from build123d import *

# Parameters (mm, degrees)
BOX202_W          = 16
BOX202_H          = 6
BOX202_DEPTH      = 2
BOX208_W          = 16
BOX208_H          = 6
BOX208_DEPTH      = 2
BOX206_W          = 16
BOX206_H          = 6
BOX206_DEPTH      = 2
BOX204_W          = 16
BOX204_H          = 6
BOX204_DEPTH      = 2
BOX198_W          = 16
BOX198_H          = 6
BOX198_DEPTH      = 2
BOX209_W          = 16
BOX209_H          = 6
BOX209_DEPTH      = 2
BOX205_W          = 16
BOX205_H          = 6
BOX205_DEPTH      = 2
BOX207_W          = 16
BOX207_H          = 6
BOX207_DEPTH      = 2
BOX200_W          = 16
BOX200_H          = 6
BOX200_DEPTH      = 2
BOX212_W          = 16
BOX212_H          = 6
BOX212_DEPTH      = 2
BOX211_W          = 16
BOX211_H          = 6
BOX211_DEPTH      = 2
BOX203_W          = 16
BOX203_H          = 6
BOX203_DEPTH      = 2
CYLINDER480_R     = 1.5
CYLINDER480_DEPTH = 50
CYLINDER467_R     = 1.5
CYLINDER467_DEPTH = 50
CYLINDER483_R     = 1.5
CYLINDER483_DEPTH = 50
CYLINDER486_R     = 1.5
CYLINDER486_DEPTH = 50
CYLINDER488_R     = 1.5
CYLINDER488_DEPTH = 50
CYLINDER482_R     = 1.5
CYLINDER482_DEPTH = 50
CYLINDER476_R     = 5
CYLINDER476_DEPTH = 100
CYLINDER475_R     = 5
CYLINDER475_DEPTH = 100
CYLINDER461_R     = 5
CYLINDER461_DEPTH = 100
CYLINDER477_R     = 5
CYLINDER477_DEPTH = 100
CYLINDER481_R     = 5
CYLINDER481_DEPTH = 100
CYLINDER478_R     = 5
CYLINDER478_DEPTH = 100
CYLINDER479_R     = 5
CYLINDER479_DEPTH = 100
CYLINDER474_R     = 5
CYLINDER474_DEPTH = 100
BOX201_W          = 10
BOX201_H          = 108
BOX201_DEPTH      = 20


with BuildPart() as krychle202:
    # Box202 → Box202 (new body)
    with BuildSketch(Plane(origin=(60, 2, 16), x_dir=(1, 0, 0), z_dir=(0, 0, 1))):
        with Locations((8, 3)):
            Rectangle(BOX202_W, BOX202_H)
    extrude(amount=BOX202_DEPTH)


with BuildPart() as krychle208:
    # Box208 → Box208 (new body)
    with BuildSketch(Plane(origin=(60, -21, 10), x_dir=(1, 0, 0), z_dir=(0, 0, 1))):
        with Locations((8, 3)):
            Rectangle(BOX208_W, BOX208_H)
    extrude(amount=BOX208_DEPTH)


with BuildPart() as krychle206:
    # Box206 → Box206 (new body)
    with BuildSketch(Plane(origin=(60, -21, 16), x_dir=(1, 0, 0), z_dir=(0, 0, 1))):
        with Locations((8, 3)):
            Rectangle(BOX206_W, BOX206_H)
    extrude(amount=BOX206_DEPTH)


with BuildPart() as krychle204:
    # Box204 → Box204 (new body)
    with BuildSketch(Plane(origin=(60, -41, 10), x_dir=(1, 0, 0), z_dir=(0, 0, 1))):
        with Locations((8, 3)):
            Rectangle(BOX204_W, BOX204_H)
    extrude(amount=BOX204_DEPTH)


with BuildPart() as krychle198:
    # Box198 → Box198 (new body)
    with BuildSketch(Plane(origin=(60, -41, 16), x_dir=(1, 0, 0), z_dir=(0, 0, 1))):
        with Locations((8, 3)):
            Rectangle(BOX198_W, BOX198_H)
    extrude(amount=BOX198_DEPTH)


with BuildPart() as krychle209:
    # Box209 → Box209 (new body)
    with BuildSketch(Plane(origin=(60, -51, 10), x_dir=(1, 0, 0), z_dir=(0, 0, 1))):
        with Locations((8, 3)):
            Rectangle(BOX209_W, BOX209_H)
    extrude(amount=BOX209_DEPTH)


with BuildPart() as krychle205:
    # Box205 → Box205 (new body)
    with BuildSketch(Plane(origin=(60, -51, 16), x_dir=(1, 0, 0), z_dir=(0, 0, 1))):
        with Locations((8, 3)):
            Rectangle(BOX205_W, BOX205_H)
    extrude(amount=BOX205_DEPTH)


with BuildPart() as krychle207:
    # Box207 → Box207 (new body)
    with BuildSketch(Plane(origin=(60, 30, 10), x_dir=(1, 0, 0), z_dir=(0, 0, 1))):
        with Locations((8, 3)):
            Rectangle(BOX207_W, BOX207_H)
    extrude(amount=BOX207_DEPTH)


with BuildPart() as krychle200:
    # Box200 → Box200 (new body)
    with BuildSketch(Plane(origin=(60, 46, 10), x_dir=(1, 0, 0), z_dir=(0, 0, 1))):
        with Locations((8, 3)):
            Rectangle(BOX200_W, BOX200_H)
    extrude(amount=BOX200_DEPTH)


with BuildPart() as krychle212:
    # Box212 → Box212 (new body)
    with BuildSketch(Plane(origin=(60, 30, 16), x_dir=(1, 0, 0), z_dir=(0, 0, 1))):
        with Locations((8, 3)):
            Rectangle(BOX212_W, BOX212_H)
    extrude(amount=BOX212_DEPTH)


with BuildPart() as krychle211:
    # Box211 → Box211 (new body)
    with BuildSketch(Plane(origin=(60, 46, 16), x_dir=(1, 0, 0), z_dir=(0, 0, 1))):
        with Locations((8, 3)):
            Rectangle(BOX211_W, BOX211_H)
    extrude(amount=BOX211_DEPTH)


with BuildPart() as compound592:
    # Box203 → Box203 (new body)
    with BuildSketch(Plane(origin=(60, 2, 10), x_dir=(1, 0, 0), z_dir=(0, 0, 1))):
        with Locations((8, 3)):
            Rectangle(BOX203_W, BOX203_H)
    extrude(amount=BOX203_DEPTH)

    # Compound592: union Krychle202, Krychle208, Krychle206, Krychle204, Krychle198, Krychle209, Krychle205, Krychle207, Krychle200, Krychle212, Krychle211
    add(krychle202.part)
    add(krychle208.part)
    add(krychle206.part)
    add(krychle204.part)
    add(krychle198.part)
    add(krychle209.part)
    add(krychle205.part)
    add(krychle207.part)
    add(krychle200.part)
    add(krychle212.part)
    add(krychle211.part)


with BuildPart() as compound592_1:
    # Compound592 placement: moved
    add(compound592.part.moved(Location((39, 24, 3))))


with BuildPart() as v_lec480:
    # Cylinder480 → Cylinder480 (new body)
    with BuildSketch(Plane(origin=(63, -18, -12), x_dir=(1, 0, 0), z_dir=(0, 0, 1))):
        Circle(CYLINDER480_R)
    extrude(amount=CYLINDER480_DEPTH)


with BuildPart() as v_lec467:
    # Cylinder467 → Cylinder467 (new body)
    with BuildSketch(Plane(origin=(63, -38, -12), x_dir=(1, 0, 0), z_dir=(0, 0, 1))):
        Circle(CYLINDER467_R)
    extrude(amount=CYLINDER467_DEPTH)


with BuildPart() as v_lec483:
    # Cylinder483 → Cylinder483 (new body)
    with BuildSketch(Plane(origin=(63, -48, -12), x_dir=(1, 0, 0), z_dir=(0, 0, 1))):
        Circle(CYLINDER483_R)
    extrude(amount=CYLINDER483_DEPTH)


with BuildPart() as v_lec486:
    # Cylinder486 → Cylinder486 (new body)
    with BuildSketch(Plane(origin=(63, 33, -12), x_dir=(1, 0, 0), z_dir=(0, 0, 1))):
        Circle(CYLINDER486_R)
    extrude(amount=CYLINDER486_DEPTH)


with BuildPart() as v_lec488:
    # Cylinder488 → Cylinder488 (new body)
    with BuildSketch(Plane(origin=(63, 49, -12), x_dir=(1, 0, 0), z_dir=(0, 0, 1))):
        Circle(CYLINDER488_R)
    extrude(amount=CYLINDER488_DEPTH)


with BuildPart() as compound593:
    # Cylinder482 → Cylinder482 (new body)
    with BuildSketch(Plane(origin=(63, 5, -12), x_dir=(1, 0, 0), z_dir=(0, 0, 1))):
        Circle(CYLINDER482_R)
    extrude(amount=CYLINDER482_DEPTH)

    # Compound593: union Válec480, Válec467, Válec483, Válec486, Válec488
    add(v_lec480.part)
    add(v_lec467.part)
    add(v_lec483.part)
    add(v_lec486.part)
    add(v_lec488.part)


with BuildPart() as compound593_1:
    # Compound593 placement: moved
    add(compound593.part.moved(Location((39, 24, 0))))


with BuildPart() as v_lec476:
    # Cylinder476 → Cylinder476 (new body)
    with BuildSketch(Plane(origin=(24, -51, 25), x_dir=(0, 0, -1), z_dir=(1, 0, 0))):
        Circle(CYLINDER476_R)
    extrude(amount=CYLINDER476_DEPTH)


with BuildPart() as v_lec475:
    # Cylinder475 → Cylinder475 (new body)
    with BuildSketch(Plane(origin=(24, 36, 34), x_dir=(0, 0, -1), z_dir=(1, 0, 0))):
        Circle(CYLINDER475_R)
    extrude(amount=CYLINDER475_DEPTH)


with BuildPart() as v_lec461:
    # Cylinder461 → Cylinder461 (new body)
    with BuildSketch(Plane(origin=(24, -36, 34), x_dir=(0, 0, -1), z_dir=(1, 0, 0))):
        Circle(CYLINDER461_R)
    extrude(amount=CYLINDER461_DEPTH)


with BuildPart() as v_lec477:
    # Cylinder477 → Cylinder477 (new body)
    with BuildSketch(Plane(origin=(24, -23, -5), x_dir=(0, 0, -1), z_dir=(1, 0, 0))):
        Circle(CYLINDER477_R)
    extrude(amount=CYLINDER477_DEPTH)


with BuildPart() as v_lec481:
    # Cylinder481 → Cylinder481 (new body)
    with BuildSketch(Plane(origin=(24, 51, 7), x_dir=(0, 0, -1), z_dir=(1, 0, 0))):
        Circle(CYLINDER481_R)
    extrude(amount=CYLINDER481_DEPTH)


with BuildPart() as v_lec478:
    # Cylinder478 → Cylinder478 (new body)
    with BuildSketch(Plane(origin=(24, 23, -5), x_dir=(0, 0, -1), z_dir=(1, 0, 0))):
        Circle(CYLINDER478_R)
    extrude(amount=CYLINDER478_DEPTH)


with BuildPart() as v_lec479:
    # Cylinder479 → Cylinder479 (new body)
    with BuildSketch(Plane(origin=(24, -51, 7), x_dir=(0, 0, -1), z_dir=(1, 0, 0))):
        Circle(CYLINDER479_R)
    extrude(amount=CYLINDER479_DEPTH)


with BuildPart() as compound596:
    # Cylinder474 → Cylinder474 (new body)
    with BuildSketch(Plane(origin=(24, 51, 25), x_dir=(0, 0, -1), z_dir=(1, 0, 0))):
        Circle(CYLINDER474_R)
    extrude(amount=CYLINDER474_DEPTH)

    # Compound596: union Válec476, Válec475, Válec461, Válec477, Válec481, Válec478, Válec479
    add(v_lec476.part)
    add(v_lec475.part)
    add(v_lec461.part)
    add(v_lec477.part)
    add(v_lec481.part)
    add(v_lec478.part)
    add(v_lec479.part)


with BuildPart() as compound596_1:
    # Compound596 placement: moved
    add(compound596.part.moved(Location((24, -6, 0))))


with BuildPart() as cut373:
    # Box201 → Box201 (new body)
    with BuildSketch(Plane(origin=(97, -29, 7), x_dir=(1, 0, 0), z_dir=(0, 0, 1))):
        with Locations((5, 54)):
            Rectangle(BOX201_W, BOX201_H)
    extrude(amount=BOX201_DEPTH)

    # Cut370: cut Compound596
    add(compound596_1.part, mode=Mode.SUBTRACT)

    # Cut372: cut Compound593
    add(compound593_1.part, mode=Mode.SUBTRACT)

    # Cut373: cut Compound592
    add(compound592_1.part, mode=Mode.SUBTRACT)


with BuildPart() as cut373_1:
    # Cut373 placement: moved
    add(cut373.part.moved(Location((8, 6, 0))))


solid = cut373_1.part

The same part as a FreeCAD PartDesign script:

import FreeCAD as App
import Part
import Sketcher
Q = App.Units.Quantity

doc = App.newDocument("Part")
body = doc.addObject("PartDesign::Body", "Body")

# Sketch on XY plane
sketch1 = body.newObject("Sketcher::SketchObject", "Sketch")
sketch1.AttachmentSupport = (doc.getObject("XY_Plane"), [""])
sketch1.MapMode = "FlatFace"
sketch1.AttachmentOffset = App.Placement(App.Vector(0, 0, 16), App.Rotation())
sketch1.addGeometry(Part.LineSegment(App.Vector(60, 8, 0), App.Vector(60, 2, 0)), False)
sketch1.addGeometry(Part.LineSegment(App.Vector(60, 2, 0), App.Vector(76, 2, 0)), False)
sketch1.addGeometry(Part.LineSegment(App.Vector(76, 2, 0), App.Vector(76, 8, 0)), False)
sketch1.addGeometry(Part.LineSegment(App.Vector(76, 8, 0), App.Vector(60, 8, 0)), False)
sketch1.addConstraint(Sketcher.Constraint("Coincident", 0, 2, 1, 1))
sketch1.addConstraint(Sketcher.Constraint("Coincident", 1, 2, 2, 1))
sketch1.addConstraint(Sketcher.Constraint("Coincident", 2, 2, 3, 1))
sketch1.addConstraint(Sketcher.Constraint("Coincident", 3, 2, 0, 1))
sketch1.addConstraint(Sketcher.Constraint("Vertical", 0))
sketch1.addConstraint(Sketcher.Constraint("Horizontal", 1))
sketch1.addConstraint(Sketcher.Constraint("Vertical", 2))
sketch1.addConstraint(Sketcher.Constraint("Horizontal", 3))
sketch1.addConstraint(Sketcher.Constraint("DistanceX", 1, 1, 1, 2, Q("16 mm")))
sketch1.addConstraint(Sketcher.Constraint("DistanceY", 0, 2, 0, 1, Q("6 mm")))
sketch1.addConstraint(Sketcher.Constraint("DistanceX", -1, 1, 0, 2, Q("60 mm")))
sketch1.addConstraint(Sketcher.Constraint("DistanceY", -1, 1, 0, 2, Q("2 mm")))
pad1 = body.newObject("PartDesign::Pad", "Pad")
pad1.Profile = sketch1
pad1.Length = 2
body2 = doc.addObject("PartDesign::Body", "Body001")

# Sketch on XY plane
sketch2 = body2.newObject("Sketcher::SketchObject", "Sketch001")
sketch2.AttachmentSupport = (doc.getObject("XY_Plane001"), [""])
sketch2.MapMode = "FlatFace"
sketch2.AttachmentOffset = App.Placement(App.Vector(0, 0, 10), App.Rotation())
sketch2.addGeometry(Part.LineSegment(App.Vector(60, -15, 0), App.Vector(60, -21, 0)), False)
sketch2.addGeometry(Part.LineSegment(App.Vector(60, -21, 0), App.Vector(76, -21, 0)), False)
sketch2.addGeometry(Part.LineSegment(App.Vector(76, -21, 0), App.Vector(76, -15, 0)), False)
sketch2.addGeometry(Part.LineSegment(App.Vector(76, -15, 0), App.Vector(60, -15, 0)), False)
sketch2.addConstraint(Sketcher.Constraint("Coincident", 0, 2, 1, 1))
sketch2.addConstraint(Sketcher.Constraint("Coincident", 1, 2, 2, 1))
sketch2.addConstraint(Sketcher.Constraint("Coincident", 2, 2, 3, 1))
sketch2.addConstraint(Sketcher.Constraint("Coincident", 3, 2, 0, 1))
sketch2.addConstraint(Sketcher.Constraint("Vertical", 0))
sketch2.addConstraint(Sketcher.Constraint("Horizontal", 1))
sketch2.addConstraint(Sketcher.Constraint("Vertical", 2))
sketch2.addConstraint(Sketcher.Constraint("Horizontal", 3))
sketch2.addConstraint(Sketcher.Constraint("DistanceX", 1, 1, 1, 2, Q("16 mm")))
sketch2.addConstraint(Sketcher.Constraint("DistanceY", 0, 2, 0, 1, Q("6 mm")))
sketch2.addConstraint(Sketcher.Constraint("DistanceX", -1, 1, 0, 2, Q("60 mm")))
sketch2.addConstraint(Sketcher.Constraint("DistanceY", 0, 2, -1, 1, Q("21 mm")))
pad2 = body2.newObject("PartDesign::Pad", "Pad001")
pad2.Profile = sketch2
pad2.Length = 2
body3 = doc.addObject("PartDesign::Body", "Body002")

# Sketch on XY plane
sketch3 = body3.newObject("Sketcher::SketchObject", "Sketch002")
sketch3.AttachmentSupport = (doc.getObject("XY_Plane002"), [""])
sketch3.MapMode = "FlatFace"
sketch3.AttachmentOffset = App.Placement(App.Vector(0, 0, 16), App.Rotation())
sketch3.addGeometry(Part.LineSegment(App.Vector(60, -15, 0), App.Vector(60, -21, 0)), False)
sketch3.addGeometry(Part.LineSegment(App.Vector(60, -21, 0), App.Vector(76, -21, 0)), False)
sketch3.addGeometry(Part.LineSegment(App.Vector(76, -21, 0), App.Vector(76, -15, 0)), False)
sketch3.addGeometry(Part.LineSegment(App.Vector(76, -15, 0), App.Vector(60, -15, 0)), False)
sketch3.addConstraint(Sketcher.Constraint("Coincident", 0, 2, 1, 1))
sketch3.addConstraint(Sketcher.Constraint("Coincident", 1, 2, 2, 1))
sketch3.addConstraint(Sketcher.Constraint("Coincident", 2, 2, 3, 1))
sketch3.addConstraint(Sketcher.Constraint("Coincident", 3, 2, 0, 1))
sketch3.addConstraint(Sketcher.Constraint("Vertical", 0))
sketch3.addConstraint(Sketcher.Constraint("Horizontal", 1))
sketch3.addConstraint(Sketcher.Constraint("Vertical", 2))
sketch3.addConstraint(Sketcher.Constraint("Horizontal", 3))
sketch3.addConstraint(Sketcher.Constraint("DistanceX", 1, 1, 1, 2, Q("16 mm")))
sketch3.addConstraint(Sketcher.Constraint("DistanceY", 0, 2, 0, 1, Q("6 mm")))
sketch3.addConstraint(Sketcher.Constraint("DistanceX", -1, 1, 0, 2, Q("60 mm")))
sketch3.addConstraint(Sketcher.Constraint("DistanceY", 0, 2, -1, 1, Q("21 mm")))
pad3 = body3.newObject("PartDesign::Pad", "Pad002")
pad3.Profile = sketch3
pad3.Length = 2
body4 = doc.addObject("PartDesign::Body", "Body003")

# Sketch on XY plane
sketch4 = body4.newObject("Sketcher::SketchObject", "Sketch003")
sketch4.AttachmentSupport = (doc.getObject("XY_Plane003"), [""])
sketch4.MapMode = "FlatFace"
sketch4.AttachmentOffset = App.Placement(App.Vector(0, 0, 10), App.Rotation())
sketch4.addGeometry(Part.LineSegment(App.Vector(60, -35, 0), App.Vector(60, -41, 0)), False)
sketch4.addGeometry(Part.LineSegment(App.Vector(60, -41, 0), App.Vector(76, -41, 0)), False)
sketch4.addGeometry(Part.LineSegment(App.Vector(76, -41, 0), App.Vector(76, -35, 0)), False)
sketch4.addGeometry(Part.LineSegment(App.Vector(76, -35, 0), App.Vector(60, -35, 0)), False)
sketch4.addConstraint(Sketcher.Constraint("Coincident", 0, 2, 1, 1))
sketch4.addConstraint(Sketcher.Constraint("Coincident", 1, 2, 2, 1))
sketch4.addConstraint(Sketcher.Constraint("Coincident", 2, 2, 3, 1))
sketch4.addConstraint(Sketcher.Constraint("Coincident", 3, 2, 0, 1))
sketch4.addConstraint(Sketcher.Constraint("Vertical", 0))
sketch4.addConstraint(Sketcher.Constraint("Horizontal", 1))
sketch4.addConstraint(Sketcher.Constraint("Vertical", 2))
sketch4.addConstraint(Sketcher.Constraint("Horizontal", 3))
sketch4.addConstraint(Sketcher.Constraint("DistanceX", 1, 1, 1, 2, Q("16 mm")))
sketch4.addConstraint(Sketcher.Constraint("DistanceY", 0, 2, 0, 1, Q("6 mm")))
sketch4.addConstraint(Sketcher.Constraint("DistanceX", -1, 1, 0, 2, Q("60 mm")))
sketch4.addConstraint(Sketcher.Constraint("DistanceY", 0, 2, -1, 1, Q("41 mm")))
pad4 = body4.newObject("PartDesign::Pad", "Pad003")
pad4.Profile = sketch4
pad4.Length = 2
body5 = doc.addObject("PartDesign::Body", "Body004")

# Sketch on XY plane
sketch5 = body5.newObject("Sketcher::SketchObject", "Sketch004")
sketch5.AttachmentSupport = (doc.getObject("XY_Plane004"), [""])
sketch5.MapMode = "FlatFace"
sketch5.AttachmentOffset = App.Placement(App.Vector(0, 0, 16), App.Rotation())
sketch5.addGeometry(Part.LineSegment(App.Vector(60, -35, 0), App.Vector(60, -41, 0)), False)
sketch5.addGeometry(Part.LineSegment(App.Vector(60, -41, 0), App.Vector(76, -41, 0)), False)
sketch5.addGeometry(Part.LineSegment(App.Vector(76, -41, 0), App.Vector(76, -35, 0)), False)
sketch5.addGeometry(Part.LineSegment(App.Vector(76, -35, 0), App.Vector(60, -35, 0)), False)
sketch5.addConstraint(Sketcher.Constraint("Coincident", 0, 2, 1, 1))
sketch5.addConstraint(Sketcher.Constraint("Coincident", 1, 2, 2, 1))
sketch5.addConstraint(Sketcher.Constraint("Coincident", 2, 2, 3, 1))
sketch5.addConstraint(Sketcher.Constraint("Coincident", 3, 2, 0, 1))
sketch5.addConstraint(Sketcher.Constraint("Vertical", 0))
sketch5.addConstraint(Sketcher.Constraint("Horizontal", 1))
sketch5.addConstraint(Sketcher.Constraint("Vertical", 2))
sketch5.addConstraint(Sketcher.Constraint("Horizontal", 3))
sketch5.addConstraint(Sketcher.Constraint("DistanceX", 1, 1, 1, 2, Q("16 mm")))
sketch5.addConstraint(Sketcher.Constraint("DistanceY", 0, 2, 0, 1, Q("6 mm")))
sketch5.addConstraint(Sketcher.Constraint("DistanceX", -1, 1, 0, 2, Q("60 mm")))
sketch5.addConstraint(Sketcher.Constraint("DistanceY", 0, 2, -1, 1, Q("41 mm")))
pad5 = body5.newObject("PartDesign::Pad", "Pad004")
pad5.Profile = sketch5
pad5.Length = 2
body6 = doc.addObject("PartDesign::Body", "Body005")

# Sketch on XY plane
sketch6 = body6.newObject("Sketcher::SketchObject", "Sketch005")
sketch6.AttachmentSupport = (doc.getObject("XY_Plane005"), [""])
sketch6.MapMode = "FlatFace"
sketch6.AttachmentOffset = App.Placement(App.Vector(0, 0, 10), App.Rotation())
sketch6.addGeometry(Part.LineSegment(App.Vector(60, -45, 0), App.Vector(60, -51, 0)), False)
sketch6.addGeometry(Part.LineSegment(App.Vector(60, -51, 0), App.Vector(76, -51, 0)), False)
sketch6.addGeometry(Part.LineSegment(App.Vector(76, -51, 0), App.Vector(76, -45, 0)), False)
sketch6.addGeometry(Part.LineSegment(App.Vector(76, -45, 0), App.Vector(60, -45, 0)), False)
sketch6.addConstraint(Sketcher.Constraint("Coincident", 0, 2, 1, 1))
sketch6.addConstraint(Sketcher.Constraint("Coincident", 1, 2, 2, 1))
sketch6.addConstraint(Sketcher.Constraint("Coincident", 2, 2, 3, 1))
sketch6.addConstraint(Sketcher.Constraint("Coincident", 3, 2, 0, 1))
sketch6.addConstraint(Sketcher.Constraint("Vertical", 0))
sketch6.addConstraint(Sketcher.Constraint("Horizontal", 1))
sketch6.addConstraint(Sketcher.Constraint("Vertical", 2))
sketch6.addConstraint(Sketcher.Constraint("Horizontal", 3))
sketch6.addConstraint(Sketcher.Constraint("DistanceX", 1, 1, 1, 2, Q("16 mm")))
sketch6.addConstraint(Sketcher.Constraint("DistanceY", 0, 2, 0, 1, Q("6 mm")))
sketch6.addConstraint(Sketcher.Constraint("DistanceX", -1, 1, 0, 2, Q("60 mm")))
sketch6.addConstraint(Sketcher.Constraint("DistanceY", 0, 2, -1, 1, Q("51 mm")))
pad6 = body6.newObject("PartDesign::Pad", "Pad005")
pad6.Profile = sketch6
pad6.Length = 2
body7 = doc.addObject("PartDesign::Body", "Body006")

# Sketch on XY plane
sketch7 = body7.newObject("Sketcher::SketchObject", "Sketch006")
sketch7.AttachmentSupport = (doc.getObject("XY_Plane006"), [""])
sketch7.MapMode = "FlatFace"
sketch7.AttachmentOffset = App.Placement(App.Vector(0, 0, 16), App.Rotation())
sketch7.addGeometry(Part.LineSegment(App.Vector(60, -45, 0), App.Vector(60, -51, 0)), False)
sketch7.addGeometry(Part.LineSegment(App.Vector(60, -51, 0), App.Vector(76, -51, 0)), False)
sketch7.addGeometry(Part.LineSegment(App.Vector(76, -51, 0), App.Vector(76, -45, 0)), False)
sketch7.addGeometry(Part.LineSegment(App.Vector(76, -45, 0), App.Vector(60, -45, 0)), False)
sketch7.addConstraint(Sketcher.Constraint("Coincident", 0, 2, 1, 1))
sketch7.addConstraint(Sketcher.Constraint("Coincident", 1, 2, 2, 1))
sketch7.addConstraint(Sketcher.Constraint("Coincident", 2, 2, 3, 1))
sketch7.addConstraint(Sketcher.Constraint("Coincident", 3, 2, 0, 1))
sketch7.addConstraint(Sketcher.Constraint("Vertical", 0))
sketch7.addConstraint(Sketcher.Constraint("Horizontal", 1))
sketch7.addConstraint(Sketcher.Constraint("Vertical", 2))
sketch7.addConstraint(Sketcher.Constraint("Horizontal", 3))
sketch7.addConstraint(Sketcher.Constraint("DistanceX", 1, 1, 1, 2, Q("16 mm")))
sketch7.addConstraint(Sketcher.Constraint("DistanceY", 0, 2, 0, 1, Q("6 mm")))
sketch7.addConstraint(Sketcher.Constraint("DistanceX", -1, 1, 0, 2, Q("60 mm")))
sketch7.addConstraint(Sketcher.Constraint("DistanceY", 0, 2, -1, 1, Q("51 mm")))
pad7 = body7.newObject("PartDesign::Pad", "Pad006")
pad7.Profile = sketch7
pad7.Length = 2
body8 = doc.addObject("PartDesign::Body", "Body007")

# Sketch on XY plane
sketch8 = body8.newObject("Sketcher::SketchObject", "Sketch007")
sketch8.AttachmentSupport = (doc.getObject("XY_Plane007"), [""])
sketch8.MapMode = "FlatFace"
sketch8.AttachmentOffset = App.Placement(App.Vector(0, 0, 10), App.Rotation())
sketch8.addGeometry(Part.LineSegment(App.Vector(60, 36, 0), App.Vector(60, 30, 0)), False)
sketch8.addGeometry(Part.LineSegment(App.Vector(60, 30, 0), App.Vector(76, 30, 0)), False)
sketch8.addGeometry(Part.LineSegment(App.Vector(76, 30, 0), App.Vector(76, 36, 0)), False)
sketch8.addGeometry(Part.LineSegment(App.Vector(76, 36, 0), App.Vector(60, 36, 0)), False)
sketch8.addConstraint(Sketcher.Constraint("Coincident", 0, 2, 1, 1))
sketch8.addConstraint(Sketcher.Constraint("Coincident", 1, 2, 2, 1))
sketch8.addConstraint(Sketcher.Constraint("Coincident", 2, 2, 3, 1))
sketch8.addConstraint(Sketcher.Constraint("Coincident", 3, 2, 0, 1))
sketch8.addConstraint(Sketcher.Constraint("Vertical", 0))
sketch8.addConstraint(Sketcher.Constraint("Horizontal", 1))
sketch8.addConstraint(Sketcher.Constraint("Vertical", 2))
sketch8.addConstraint(Sketcher.Constraint("Horizontal", 3))
sketch8.addConstraint(Sketcher.Constraint("DistanceX", 1, 1, 1, 2, Q("16 mm")))
sketch8.addConstraint(Sketcher.Constraint("DistanceY", 0, 2, 0, 1, Q("6 mm")))
sketch8.addConstraint(Sketcher.Constraint("DistanceX", -1, 1, 0, 2, Q("60 mm")))
sketch8.addConstraint(Sketcher.Constraint("DistanceY", -1, 1, 0, 2, Q("30 mm")))
pad8 = body8.newObject("PartDesign::Pad", "Pad007")
pad8.Profile = sketch8
pad8.Length = 2
body9 = doc.addObject("PartDesign::Body", "Body008")

# Sketch on XY plane
sketch9 = body9.newObject("Sketcher::SketchObject", "Sketch008")
sketch9.AttachmentSupport = (doc.getObject("XY_Plane008"), [""])
sketch9.MapMode = "FlatFace"
sketch9.AttachmentOffset = App.Placement(App.Vector(0, 0, 10), App.Rotation())
sketch9.addGeometry(Part.LineSegment(App.Vector(60, 52, 0), App.Vector(60, 46, 0)), False)
sketch9.addGeometry(Part.LineSegment(App.Vector(60, 46, 0), App.Vector(76, 46, 0)), False)
sketch9.addGeometry(Part.LineSegment(App.Vector(76, 46, 0), App.Vector(76, 52, 0)), False)
sketch9.addGeometry(Part.LineSegment(App.Vector(76, 52, 0), App.Vector(60, 52, 0)), False)
sketch9.addConstraint(Sketcher.Constraint("Coincident", 0, 2, 1, 1))
sketch9.addConstraint(Sketcher.Constraint("Coincident", 1, 2, 2, 1))
sketch9.addConstraint(Sketcher.Constraint("Coincident", 2, 2, 3, 1))
sketch9.addConstraint(Sketcher.Constraint("Coincident", 3, 2, 0, 1))
sketch9.addConstraint(Sketcher.Constraint("Vertical", 0))
sketch9.addConstraint(Sketcher.Constraint("Horizontal", 1))
sketch9.addConstraint(Sketcher.Constraint("Vertical", 2))
sketch9.addConstraint(Sketcher.Constraint("Horizontal", 3))
sketch9.addConstraint(Sketcher.Constraint("DistanceX", 1, 1, 1, 2, Q("16 mm")))
sketch9.addConstraint(Sketcher.Constraint("DistanceY", 0, 2, 0, 1, Q("6 mm")))
sketch9.addConstraint(Sketcher.Constraint("DistanceX", -1, 1, 0, 2, Q("60 mm")))
sketch9.addConstraint(Sketcher.Constraint("DistanceY", -1, 1, 0, 2, Q("46 mm")))
pad9 = body9.newObject("PartDesign::Pad", "Pad008")
pad9.Profile = sketch9
pad9.Length = 2
body10 = doc.addObject("PartDesign::Body", "Body009")

# Sketch on XY plane
sketch10 = body10.newObject("Sketcher::SketchObject", "Sketch009")
sketch10.AttachmentSupport = (doc.getObject("XY_Plane009"), [""])
sketch10.MapMode = "FlatFace"
sketch10.AttachmentOffset = App.Placement(App.Vector(0, 0, 16), App.Rotation())
sketch10.addGeometry(Part.LineSegment(App.Vector(60, 36, 0), App.Vector(60, 30, 0)), False)
sketch10.addGeometry(Part.LineSegment(App.Vector(60, 30, 0), App.Vector(76, 30, 0)), False)
sketch10.addGeometry(Part.LineSegment(App.Vector(76, 30, 0), App.Vector(76, 36, 0)), False)
sketch10.addGeometry(Part.LineSegment(App.Vector(76, 36, 0), App.Vector(60, 36, 0)), False)
sketch10.addConstraint(Sketcher.Constraint("Coincident", 0, 2, 1, 1))
sketch10.addConstraint(Sketcher.Constraint("Coincident", 1, 2, 2, 1))
sketch10.addConstraint(Sketcher.Constraint("Coincident", 2, 2, 3, 1))
sketch10.addConstraint(Sketcher.Constraint("Coincident", 3, 2, 0, 1))
sketch10.addConstraint(Sketcher.Constraint("Vertical", 0))
sketch10.addConstraint(Sketcher.Constraint("Horizontal", 1))
sketch10.addConstraint(Sketcher.Constraint("Vertical", 2))
sketch10.addConstraint(Sketcher.Constraint("Horizontal", 3))
sketch10.addConstraint(Sketcher.Constraint("DistanceX", 1, 1, 1, 2, Q("16 mm")))
sketch10.addConstraint(Sketcher.Constraint("DistanceY", 0, 2, 0, 1, Q("6 mm")))
sketch10.addConstraint(Sketcher.Constraint("DistanceX", -1, 1, 0, 2, Q("60 mm")))
sketch10.addConstraint(Sketcher.Constraint("DistanceY", -1, 1, 0, 2, Q("30 mm")))
pad10 = body10.newObject("PartDesign::Pad", "Pad009")
pad10.Profile = sketch10
pad10.Length = 2
body11 = doc.addObject("PartDesign::Body", "Body010")

# Sketch on XY plane
sketch11 = body11.newObject("Sketcher::SketchObject", "Sketch010")
sketch11.AttachmentSupport = (doc.getObject("XY_Plane010"), [""])
sketch11.MapMode = "FlatFace"
sketch11.AttachmentOffset = App.Placement(App.Vector(0, 0, 16), App.Rotation())
sketch11.addGeometry(Part.LineSegment(App.Vector(60, 52, 0), App.Vector(60, 46, 0)), False)
sketch11.addGeometry(Part.LineSegment(App.Vector(60, 46, 0), App.Vector(76, 46, 0)), False)
sketch11.addGeometry(Part.LineSegment(App.Vector(76, 46, 0), App.Vector(76, 52, 0)), False)
sketch11.addGeometry(Part.LineSegment(App.Vector(76, 52, 0), App.Vector(60, 52, 0)), False)
sketch11.addConstraint(Sketcher.Constraint("Coincident", 0, 2, 1, 1))
sketch11.addConstraint(Sketcher.Constraint("Coincident", 1, 2, 2, 1))
sketch11.addConstraint(Sketcher.Constraint("Coincident", 2, 2, 3, 1))
sketch11.addConstraint(Sketcher.Constraint("Coincident", 3, 2, 0, 1))
sketch11.addConstraint(Sketcher.Constraint("Vertical", 0))
sketch11.addConstraint(Sketcher.Constraint("Horizontal", 1))
sketch11.addConstraint(Sketcher.Constraint("Vertical", 2))
sketch11.addConstraint(Sketcher.Constraint("Horizontal", 3))
sketch11.addConstraint(Sketcher.Constraint("DistanceX", 1, 1, 1, 2, Q("16 mm")))
sketch11.addConstraint(Sketcher.Constraint("DistanceY", 0, 2, 0, 1, Q("6 mm")))
sketch11.addConstraint(Sketcher.Constraint("DistanceX", -1, 1, 0, 2, Q("60 mm")))
sketch11.addConstraint(Sketcher.Constraint("DistanceY", -1, 1, 0, 2, Q("46 mm")))
pad11 = body11.newObject("PartDesign::Pad", "Pad010")
pad11.Profile = sketch11
pad11.Length = 2
body12 = doc.addObject("PartDesign::Body", "Body011")
body12.AllowCompound = True

# Sketch on XY plane
sketch12 = body12.newObject("Sketcher::SketchObject", "Sketch011")
sketch12.AttachmentSupport = (doc.getObject("XY_Plane011"), [""])
sketch12.MapMode = "FlatFace"
sketch12.AttachmentOffset = App.Placement(App.Vector(0, 0, 10), App.Rotation())
sketch12.addGeometry(Part.LineSegment(App.Vector(60, 8, 0), App.Vector(60, 2, 0)), False)
sketch12.addGeometry(Part.LineSegment(App.Vector(60, 2, 0), App.Vector(76, 2, 0)), False)
sketch12.addGeometry(Part.LineSegment(App.Vector(76, 2, 0), App.Vector(76, 8, 0)), False)
sketch12.addGeometry(Part.LineSegment(App.Vector(76, 8, 0), App.Vector(60, 8, 0)), False)
sketch12.addConstraint(Sketcher.Constraint("Coincident", 0, 2, 1, 1))
sketch12.addConstraint(Sketcher.Constraint("Coincident", 1, 2, 2, 1))
sketch12.addConstraint(Sketcher.Constraint("Coincident", 2, 2, 3, 1))
sketch12.addConstraint(Sketcher.Constraint("Coincident", 3, 2, 0, 1))
sketch12.addConstraint(Sketcher.Constraint("Vertical", 0))
sketch12.addConstraint(Sketcher.Constraint("Horizontal", 1))
sketch12.addConstraint(Sketcher.Constraint("Vertical", 2))
sketch12.addConstraint(Sketcher.Constraint("Horizontal", 3))
sketch12.addConstraint(Sketcher.Constraint("DistanceX", 1, 1, 1, 2, Q("16 mm")))
sketch12.addConstraint(Sketcher.Constraint("DistanceY", 0, 2, 0, 1, Q("6 mm")))
sketch12.addConstraint(Sketcher.Constraint("DistanceX", -1, 1, 0, 2, Q("60 mm")))
sketch12.addConstraint(Sketcher.Constraint("DistanceY", -1, 1, 0, 2, Q("2 mm")))
pad12 = body12.newObject("PartDesign::Pad", "Pad011")
pad12.Profile = sketch12
pad12.Length = 2
doc.recompute()

boolean = body12.newObject("PartDesign::Boolean", "Boolean")
boolean.Type = "Fuse"
boolean.addObjects([body])
doc.recompute()

boolean2 = body12.newObject("PartDesign::Boolean", "Boolean001")
boolean2.Type = "Fuse"
boolean2.addObjects([body2])
doc.recompute()

boolean3 = body12.newObject("PartDesign::Boolean", "Boolean002")
boolean3.Type = "Fuse"
boolean3.addObjects([body3])
doc.recompute()

boolean4 = body12.newObject("PartDesign::Boolean", "Boolean003")
boolean4.Type = "Fuse"
boolean4.addObjects([body4])
doc.recompute()

boolean5 = body12.newObject("PartDesign::Boolean", "Boolean004")
boolean5.Type = "Fuse"
boolean5.addObjects([body5])
doc.recompute()

boolean6 = body12.newObject("PartDesign::Boolean", "Boolean005")
boolean6.Type = "Fuse"
boolean6.addObjects([body6])
doc.recompute()

boolean7 = body12.newObject("PartDesign::Boolean", "Boolean006")
boolean7.Type = "Fuse"
boolean7.addObjects([body7])
doc.recompute()

boolean8 = body12.newObject("PartDesign::Boolean", "Boolean007")
boolean8.Type = "Fuse"
boolean8.addObjects([body8])
doc.recompute()

boolean9 = body12.newObject("PartDesign::Boolean", "Boolean008")
boolean9.Type = "Fuse"
boolean9.addObjects([body9])
doc.recompute()

boolean10 = body12.newObject("PartDesign::Boolean", "Boolean009")
boolean10.Type = "Fuse"
boolean10.addObjects([body10])
doc.recompute()

boolean11 = body12.newObject("PartDesign::Boolean", "Boolean010")
boolean11.Type = "Fuse"
boolean11.addObjects([body11])
body13 = doc.addObject("PartDesign::Body", "Body012")
body13.AllowCompound = True
doc.recompute()

body12.Placement = App.Placement(App.Vector(39, 24, 3), App.Rotation(App.Vector(0, 0, 1), 0))
boolean12 = body13.newObject("PartDesign::Boolean", "Boolean011")
boolean12.Type = "Fuse"
boolean12.addObjects([body12])
body14 = doc.addObject("PartDesign::Body", "Body013")

# Sketch on XY plane
sketch13 = body14.newObject("Sketcher::SketchObject", "Sketch012")
sketch13.AttachmentSupport = (doc.getObject("XY_Plane013"), [""])
sketch13.MapMode = "FlatFace"
sketch13.AttachmentOffset = App.Placement(App.Vector(0, 0, -12), App.Rotation())
sketch13.addGeometry(Part.Circle(App.Vector(63, -18, 0), App.Vector(0, 0, 1), 1.5), False)
sketch13.addConstraint(Sketcher.Constraint("Diameter", 0, Q("3 mm")))
sketch13.addConstraint(Sketcher.Constraint("DistanceX", -1, 1, 0, 3, Q("63 mm")))
sketch13.addConstraint(Sketcher.Constraint("DistanceY", 0, 3, -1, 1, Q("18 mm")))
pad13 = body14.newObject("PartDesign::Pad", "Pad012")
pad13.Profile = sketch13
pad13.Length = 50
body15 = doc.addObject("PartDesign::Body", "Body014")

# Sketch on XY plane
sketch14 = body15.newObject("Sketcher::SketchObject", "Sketch013")
sketch14.AttachmentSupport = (doc.getObject("XY_Plane014"), [""])
sketch14.MapMode = "FlatFace"
sketch14.AttachmentOffset = App.Placement(App.Vector(0, 0, -12), App.Rotation())
sketch14.addGeometry(Part.Circle(App.Vector(63, -38, 0), App.Vector(0, 0, 1), 1.5), False)
sketch14.addConstraint(Sketcher.Constraint("Diameter", 0, Q("3 mm")))
sketch14.addConstraint(Sketcher.Constraint("DistanceX", -1, 1, 0, 3, Q("63 mm")))
sketch14.addConstraint(Sketcher.Constraint("DistanceY", 0, 3, -1, 1, Q("38 mm")))
pad14 = body15.newObject("PartDesign::Pad", "Pad013")
pad14.Profile = sketch14
pad14.Length = 50
body16 = doc.addObject("PartDesign::Body", "Body015")

# Sketch on XY plane
sketch15 = body16.newObject("Sketcher::SketchObject", "Sketch014")
sketch15.AttachmentSupport = (doc.getObject("XY_Plane015"), [""])
sketch15.MapMode = "FlatFace"
sketch15.AttachmentOffset = App.Placement(App.Vector(0, 0, -12), App.Rotation())
sketch15.addGeometry(Part.Circle(App.Vector(63, -48, 0), App.Vector(0, 0, 1), 1.5), False)
sketch15.addConstraint(Sketcher.Constraint("Diameter", 0, Q("3 mm")))
sketch15.addConstraint(Sketcher.Constraint("DistanceX", -1, 1, 0, 3, Q("63 mm")))
sketch15.addConstraint(Sketcher.Constraint("DistanceY", 0, 3, -1, 1, Q("48 mm")))
pad15 = body16.newObject("PartDesign::Pad", "Pad014")
pad15.Profile = sketch15
pad15.Length = 50
body17 = doc.addObject("PartDesign::Body", "Body016")

# Sketch on XY plane
sketch16 = body17.newObject("Sketcher::SketchObject", "Sketch015")
sketch16.AttachmentSupport = (doc.getObject("XY_Plane016"), [""])
sketch16.MapMode = "FlatFace"
sketch16.AttachmentOffset = App.Placement(App.Vector(0, 0, -12), App.Rotation())
sketch16.addGeometry(Part.Circle(App.Vector(63, 33, 0), App.Vector(0, 0, 1), 1.5), False)
sketch16.addConstraint(Sketcher.Constraint("Diameter", 0, Q("3 mm")))
sketch16.addConstraint(Sketcher.Constraint("DistanceX", -1, 1, 0, 3, Q("63 mm")))
sketch16.addConstraint(Sketcher.Constraint("DistanceY", -1, 1, 0, 3, Q("33 mm")))
pad16 = body17.newObject("PartDesign::Pad", "Pad015")
pad16.Profile = sketch16
pad16.Length = 50
body18 = doc.addObject("PartDesign::Body", "Body017")

# Sketch on XY plane
sketch17 = body18.newObject("Sketcher::SketchObject", "Sketch016")
sketch17.AttachmentSupport = (doc.getObject("XY_Plane017"), [""])
sketch17.MapMode = "FlatFace"
sketch17.AttachmentOffset = App.Placement(App.Vector(0, 0, -12), App.Rotation())
sketch17.addGeometry(Part.Circle(App.Vector(63, 49, 0), App.Vector(0, 0, 1), 1.5), False)
sketch17.addConstraint(Sketcher.Constraint("Diameter", 0, Q("3 mm")))
sketch17.addConstraint(Sketcher.Constraint("DistanceX", -1, 1, 0, 3, Q("63 mm")))
sketch17.addConstraint(Sketcher.Constraint("DistanceY", -1, 1, 0, 3, Q("49 mm")))
pad17 = body18.newObject("PartDesign::Pad", "Pad016")
pad17.Profile = sketch17
pad17.Length = 50
body19 = doc.addObject("PartDesign::Body", "Body018")
body19.AllowCompound = True

# Sketch on XY plane
sketch18 = body19.newObject("Sketcher::SketchObject", "Sketch017")
sketch18.AttachmentSupport = (doc.getObject("XY_Plane018"), [""])
sketch18.MapMode = "FlatFace"
sketch18.AttachmentOffset = App.Placement(App.Vector(0, 0, -12), App.Rotation())
sketch18.addGeometry(Part.Circle(App.Vector(63, 5, 0), App.Vector(0, 0, 1), 1.5), False)
sketch18.addConstraint(Sketcher.Constraint("Diameter", 0, Q("3 mm")))
sketch18.addConstraint(Sketcher.Constraint("DistanceX", -1, 1, 0, 3, Q("63 mm")))
sketch18.addConstraint(Sketcher.Constraint("DistanceY", -1, 1, 0, 3, Q("5 mm")))
pad18 = body19.newObject("PartDesign::Pad", "Pad017")
pad18.Profile = sketch18
pad18.Length = 50
doc.recompute()

boolean13 = body19.newObject("PartDesign::Boolean", "Boolean012")
boolean13.Type = "Fuse"
boolean13.addObjects([body14])
doc.recompute()

boolean14 = body19.newObject("PartDesign::Boolean", "Boolean013")
boolean14.Type = "Fuse"
boolean14.addObjects([body15])
doc.recompute()

boolean15 = body19.newObject("PartDesign::Boolean", "Boolean014")
boolean15.Type = "Fuse"
boolean15.addObjects([body16])
doc.recompute()

boolean16 = body19.newObject("PartDesign::Boolean", "Boolean015")
boolean16.Type = "Fuse"
boolean16.addObjects([body17])
doc.recompute()

boolean17 = body19.newObject("PartDesign::Boolean", "Boolean016")
boolean17.Type = "Fuse"
boolean17.addObjects([body18])
body20 = doc.addObject("PartDesign::Body", "Body019")
body20.AllowCompound = True
doc.recompute()

body19.Placement = App.Placement(App.Vector(39, 24, 0), App.Rotation(App.Vector(0, 0, 1), 0))
boolean18 = body20.newObject("PartDesign::Boolean", "Boolean017")
boolean18.Type = "Fuse"
boolean18.addObjects([body19])
body21 = doc.addObject("PartDesign::Body", "Body020")

# Sketch on YZ plane
sketch19 = body21.newObject("Sketcher::SketchObject", "Sketch018")
sketch19.AttachmentSupport = (doc.getObject("YZ_Plane020"), [""])
sketch19.MapMode = "FlatFace"
sketch19.AttachmentOffset = App.Placement(App.Vector(0, 0, 24), App.Rotation())
sketch19.addGeometry(Part.Circle(App.Vector(-51, 25, 0), App.Vector(0, 0, 1), 5), False)
sketch19.addConstraint(Sketcher.Constraint("Diameter", 0, Q("10 mm")))
sketch19.addConstraint(Sketcher.Constraint("DistanceX", 0, 3, -1, 1, Q("51 mm")))
sketch19.addConstraint(Sketcher.Constraint("DistanceY", -1, 1, 0, 3, Q("25 mm")))
pad19 = body21.newObject("PartDesign::Pad", "Pad018")
pad19.Profile = sketch19
pad19.Length = 100
body22 = doc.addObject("PartDesign::Body", "Body021")

# Sketch on YZ plane
sketch20 = body22.newObject("Sketcher::SketchObject", "Sketch019")
sketch20.AttachmentSupport = (doc.getObject("YZ_Plane021"), [""])
sketch20.MapMode = "FlatFace"
sketch20.AttachmentOffset = App.Placement(App.Vector(0, 0, 24), App.Rotation())
sketch20.addGeometry(Part.Circle(App.Vector(36, 34, 0), App.Vector(0, 0, 1), 5), False)
sketch20.addConstraint(Sketcher.Constraint("Diameter", 0, Q("10 mm")))
sketch20.addConstraint(Sketcher.Constraint("DistanceX", -1, 1, 0, 3, Q("36 mm")))
sketch20.addConstraint(Sketcher.Constraint("DistanceY", -1, 1, 0, 3, Q("34 mm")))
pad20 = body22.newObject("PartDesign::Pad", "Pad019")
pad20.Profile = sketch20
pad20.Length = 100
body23 = doc.addObject("PartDesign::Body", "Body022")

# Sketch on YZ plane
sketch21 = body23.newObject("Sketcher::SketchObject", "Sketch020")
sketch21.AttachmentSupport = (doc.getObject("YZ_Plane022"), [""])
sketch21.MapMode = "FlatFace"
sketch21.AttachmentOffset = App.Placement(App.Vector(0, 0, 24), App.Rotation())
sketch21.addGeometry(Part.Circle(App.Vector(-36, 34, 0), App.Vector(0, 0, 1), 5), False)
sketch21.addConstraint(Sketcher.Constraint("Diameter", 0, Q("10 mm")))
sketch21.addConstraint(Sketcher.Constraint("DistanceX", 0, 3, -1, 1, Q("36 mm")))
sketch21.addConstraint(Sketcher.Constraint("DistanceY", -1, 1, 0, 3, Q("34 mm")))
pad21 = body23.newObject("PartDesign::Pad", "Pad020")
pad21.Profile = sketch21
pad21.Length = 100
body24 = doc.addObject("PartDesign::Body", "Body023")

# Sketch on YZ plane
sketch22 = body24.newObject("Sketcher::SketchObject", "Sketch021")
sketch22.AttachmentSupport = (doc.getObject("YZ_Plane023"), [""])
sketch22.MapMode = "FlatFace"
sketch22.AttachmentOffset = App.Placement(App.Vector(0, 0, 24), App.Rotation())
sketch22.addGeometry(Part.Circle(App.Vector(-23, -5, 0), App.Vector(0, 0, 1), 5), False)
sketch22.addConstraint(Sketcher.Constraint("Diameter", 0, Q("10 mm")))
sketch22.addConstraint(Sketcher.Constraint("DistanceX", 0, 3, -1, 1, Q("23 mm")))
sketch22.addConstraint(Sketcher.Constraint("DistanceY", 0, 3, -1, 1, Q("5 mm")))
pad22 = body24.newObject("PartDesign::Pad", "Pad021")
pad22.Profile = sketch22
pad22.Length = 100
body25 = doc.addObject("PartDesign::Body", "Body024")

# Sketch on YZ plane
sketch23 = body25.newObject("Sketcher::SketchObject", "Sketch022")
sketch23.AttachmentSupport = (doc.getObject("YZ_Plane024"), [""])
sketch23.MapMode = "FlatFace"
sketch23.AttachmentOffset = App.Placement(App.Vector(0, 0, 24), App.Rotation())
sketch23.addGeometry(Part.Circle(App.Vector(51, 7, 0), App.Vector(0, 0, 1), 5), False)
sketch23.addConstraint(Sketcher.Constraint("Diameter", 0, Q("10 mm")))
sketch23.addConstraint(Sketcher.Constraint("DistanceX", -1, 1, 0, 3, Q("51 mm")))
sketch23.addConstraint(Sketcher.Constraint("DistanceY", -1, 1, 0, 3, Q("7 mm")))
pad23 = body25.newObject("PartDesign::Pad", "Pad022")
pad23.Profile = sketch23
pad23.Length = 100
body26 = doc.addObject("PartDesign::Body", "Body025")

# Sketch on YZ plane
sketch24 = body26.newObject("Sketcher::SketchObject", "Sketch023")
sketch24.AttachmentSupport = (doc.getObject("YZ_Plane025"), [""])
sketch24.MapMode = "FlatFace"
sketch24.AttachmentOffset = App.Placement(App.Vector(0, 0, 24), App.Rotation())
sketch24.addGeometry(Part.Circle(App.Vector(23, -5, 0), App.Vector(0, 0, 1), 5), False)
sketch24.addConstraint(Sketcher.Constraint("Diameter", 0, Q("10 mm")))
sketch24.addConstraint(Sketcher.Constraint("DistanceX", -1, 1, 0, 3, Q("23 mm")))
sketch24.addConstraint(Sketcher.Constraint("DistanceY", 0, 3, -1, 1, Q("5 mm")))
pad24 = body26.newObject("PartDesign::Pad", "Pad023")
pad24.Profile = sketch24
pad24.Length = 100
body27 = doc.addObject("PartDesign::Body", "Body026")

# Sketch on YZ plane
sketch25 = body27.newObject("Sketcher::SketchObject", "Sketch024")
sketch25.AttachmentSupport = (doc.getObject("YZ_Plane026"), [""])
sketch25.MapMode = "FlatFace"
sketch25.AttachmentOffset = App.Placement(App.Vector(0, 0, 24), App.Rotation())
sketch25.addGeometry(Part.Circle(App.Vector(-51, 7, 0), App.Vector(0, 0, 1), 5), False)
sketch25.addConstraint(Sketcher.Constraint("Diameter", 0, Q("10 mm")))
sketch25.addConstraint(Sketcher.Constraint("DistanceX", 0, 3, -1, 1, Q("51 mm")))
sketch25.addConstraint(Sketcher.Constraint("DistanceY", -1, 1, 0, 3, Q("7 mm")))
pad25 = body27.newObject("PartDesign::Pad", "Pad024")
pad25.Profile = sketch25
pad25.Length = 100
body28 = doc.addObject("PartDesign::Body", "Body027")
body28.AllowCompound = True

# Sketch on YZ plane
sketch26 = body28.newObject("Sketcher::SketchObject", "Sketch025")
sketch26.AttachmentSupport = (doc.getObject("YZ_Plane027"), [""])
sketch26.MapMode = "FlatFace"
sketch26.AttachmentOffset = App.Placement(App.Vector(0, 0, 24), App.Rotation())
sketch26.addGeometry(Part.Circle(App.Vector(51, 25, 0), App.Vector(0, 0, 1), 5), False)
sketch26.addConstraint(Sketcher.Constraint("Diameter", 0, Q("10 mm")))
sketch26.addConstraint(Sketcher.Constraint("DistanceX", -1, 1, 0, 3, Q("51 mm")))
sketch26.addConstraint(Sketcher.Constraint("DistanceY", -1, 1, 0, 3, Q("25 mm")))
pad26 = body28.newObject("PartDesign::Pad", "Pad025")
pad26.Profile = sketch26
pad26.Length = 100
doc.recompute()

boolean19 = body28.newObject("PartDesign::Boolean", "Boolean018")
boolean19.Type = "Fuse"
boolean19.addObjects([body21])
doc.recompute()

boolean20 = body28.newObject("PartDesign::Boolean", "Boolean019")
boolean20.Type = "Fuse"
boolean20.addObjects([body22])
doc.recompute()

boolean21 = body28.newObject("PartDesign::Boolean", "Boolean020")
boolean21.Type = "Fuse"
boolean21.addObjects([body23])
doc.recompute()

boolean22 = body28.newObject("PartDesign::Boolean", "Boolean021")
boolean22.Type = "Fuse"
boolean22.addObjects([body24])
doc.recompute()

boolean23 = body28.newObject("PartDesign::Boolean", "Boolean022")
boolean23.Type = "Fuse"
boolean23.addObjects([body25])
doc.recompute()

boolean24 = body28.newObject("PartDesign::Boolean", "Boolean023")
boolean24.Type = "Fuse"
boolean24.addObjects([body26])
doc.recompute()

boolean25 = body28.newObject("PartDesign::Boolean", "Boolean024")
boolean25.Type = "Fuse"
boolean25.addObjects([body27])
body29 = doc.addObject("PartDesign::Body", "Body028")
body29.AllowCompound = True
doc.recompute()

body28.Placement = App.Placement(App.Vector(24, -6, 0), App.Rotation(App.Vector(0, 0, 1), 0))
boolean26 = body29.newObject("PartDesign::Boolean", "Boolean025")
boolean26.Type = "Fuse"
boolean26.addObjects([body28])
body30 = doc.addObject("PartDesign::Body", "Body029")

# Sketch on XY plane
sketch27 = body30.newObject("Sketcher::SketchObject", "Sketch026")
sketch27.AttachmentSupport = (doc.getObject("XY_Plane029"), [""])
sketch27.MapMode = "FlatFace"
sketch27.AttachmentOffset = App.Placement(App.Vector(0, 0, 7), App.Rotation())
sketch27.addGeometry(Part.LineSegment(App.Vector(97, 79, 0), App.Vector(97, -29, 0)), False)
sketch27.addGeometry(Part.LineSegment(App.Vector(97, -29, 0), App.Vector(107, -29, 0)), False)
sketch27.addGeometry(Part.LineSegment(App.Vector(107, -29, 0), App.Vector(107, 79, 0)), False)
sketch27.addGeometry(Part.LineSegment(App.Vector(107, 79, 0), App.Vector(97, 79, 0)), False)
sketch27.addConstraint(Sketcher.Constraint("Coincident", 0, 2, 1, 1))
sketch27.addConstraint(Sketcher.Constraint("Coincident", 1, 2, 2, 1))
sketch27.addConstraint(Sketcher.Constraint("Coincident", 2, 2, 3, 1))
sketch27.addConstraint(Sketcher.Constraint("Coincident", 3, 2, 0, 1))
sketch27.addConstraint(Sketcher.Constraint("Vertical", 0))
sketch27.addConstraint(Sketcher.Constraint("Horizontal", 1))
sketch27.addConstraint(Sketcher.Constraint("Vertical", 2))
sketch27.addConstraint(Sketcher.Constraint("Horizontal", 3))
sketch27.addConstraint(Sketcher.Constraint("DistanceX", 1, 1, 1, 2, Q("10 mm")))
sketch27.addConstraint(Sketcher.Constraint("DistanceY", 0, 2, 0, 1, Q("108 mm")))
sketch27.addConstraint(Sketcher.Constraint("DistanceX", -1, 1, 0, 2, Q("97 mm")))
sketch27.addConstraint(Sketcher.Constraint("DistanceY", 0, 2, -1, 1, Q("29 mm")))
pad27 = body30.newObject("PartDesign::Pad", "Pad026")
pad27.Profile = sketch27
pad27.Length = 20
doc.recompute()

boolean27 = body30.newObject("PartDesign::Boolean", "Boolean026")
boolean27.Type = "Cut"
boolean27.addObjects([body29])
doc.recompute()

boolean28 = body30.newObject("PartDesign::Boolean", "Boolean027")
boolean28.Type = "Cut"
boolean28.addObjects([body20])
doc.recompute()

boolean29 = body30.newObject("PartDesign::Boolean", "Boolean028")
boolean29.Type = "Cut"
boolean29.addObjects([body13])
body31 = doc.addObject("PartDesign::Body", "Body030")
doc.recompute()

body30.Placement = App.Placement(App.Vector(8, 6, 0), App.Rotation(App.Vector(0, 0, 1), 0))
boolean30 = body31.newObject("PartDesign::Boolean", "Boolean029")
boolean30.Type = "Fuse"
boolean30.addObjects([body30])

doc.recompute()
